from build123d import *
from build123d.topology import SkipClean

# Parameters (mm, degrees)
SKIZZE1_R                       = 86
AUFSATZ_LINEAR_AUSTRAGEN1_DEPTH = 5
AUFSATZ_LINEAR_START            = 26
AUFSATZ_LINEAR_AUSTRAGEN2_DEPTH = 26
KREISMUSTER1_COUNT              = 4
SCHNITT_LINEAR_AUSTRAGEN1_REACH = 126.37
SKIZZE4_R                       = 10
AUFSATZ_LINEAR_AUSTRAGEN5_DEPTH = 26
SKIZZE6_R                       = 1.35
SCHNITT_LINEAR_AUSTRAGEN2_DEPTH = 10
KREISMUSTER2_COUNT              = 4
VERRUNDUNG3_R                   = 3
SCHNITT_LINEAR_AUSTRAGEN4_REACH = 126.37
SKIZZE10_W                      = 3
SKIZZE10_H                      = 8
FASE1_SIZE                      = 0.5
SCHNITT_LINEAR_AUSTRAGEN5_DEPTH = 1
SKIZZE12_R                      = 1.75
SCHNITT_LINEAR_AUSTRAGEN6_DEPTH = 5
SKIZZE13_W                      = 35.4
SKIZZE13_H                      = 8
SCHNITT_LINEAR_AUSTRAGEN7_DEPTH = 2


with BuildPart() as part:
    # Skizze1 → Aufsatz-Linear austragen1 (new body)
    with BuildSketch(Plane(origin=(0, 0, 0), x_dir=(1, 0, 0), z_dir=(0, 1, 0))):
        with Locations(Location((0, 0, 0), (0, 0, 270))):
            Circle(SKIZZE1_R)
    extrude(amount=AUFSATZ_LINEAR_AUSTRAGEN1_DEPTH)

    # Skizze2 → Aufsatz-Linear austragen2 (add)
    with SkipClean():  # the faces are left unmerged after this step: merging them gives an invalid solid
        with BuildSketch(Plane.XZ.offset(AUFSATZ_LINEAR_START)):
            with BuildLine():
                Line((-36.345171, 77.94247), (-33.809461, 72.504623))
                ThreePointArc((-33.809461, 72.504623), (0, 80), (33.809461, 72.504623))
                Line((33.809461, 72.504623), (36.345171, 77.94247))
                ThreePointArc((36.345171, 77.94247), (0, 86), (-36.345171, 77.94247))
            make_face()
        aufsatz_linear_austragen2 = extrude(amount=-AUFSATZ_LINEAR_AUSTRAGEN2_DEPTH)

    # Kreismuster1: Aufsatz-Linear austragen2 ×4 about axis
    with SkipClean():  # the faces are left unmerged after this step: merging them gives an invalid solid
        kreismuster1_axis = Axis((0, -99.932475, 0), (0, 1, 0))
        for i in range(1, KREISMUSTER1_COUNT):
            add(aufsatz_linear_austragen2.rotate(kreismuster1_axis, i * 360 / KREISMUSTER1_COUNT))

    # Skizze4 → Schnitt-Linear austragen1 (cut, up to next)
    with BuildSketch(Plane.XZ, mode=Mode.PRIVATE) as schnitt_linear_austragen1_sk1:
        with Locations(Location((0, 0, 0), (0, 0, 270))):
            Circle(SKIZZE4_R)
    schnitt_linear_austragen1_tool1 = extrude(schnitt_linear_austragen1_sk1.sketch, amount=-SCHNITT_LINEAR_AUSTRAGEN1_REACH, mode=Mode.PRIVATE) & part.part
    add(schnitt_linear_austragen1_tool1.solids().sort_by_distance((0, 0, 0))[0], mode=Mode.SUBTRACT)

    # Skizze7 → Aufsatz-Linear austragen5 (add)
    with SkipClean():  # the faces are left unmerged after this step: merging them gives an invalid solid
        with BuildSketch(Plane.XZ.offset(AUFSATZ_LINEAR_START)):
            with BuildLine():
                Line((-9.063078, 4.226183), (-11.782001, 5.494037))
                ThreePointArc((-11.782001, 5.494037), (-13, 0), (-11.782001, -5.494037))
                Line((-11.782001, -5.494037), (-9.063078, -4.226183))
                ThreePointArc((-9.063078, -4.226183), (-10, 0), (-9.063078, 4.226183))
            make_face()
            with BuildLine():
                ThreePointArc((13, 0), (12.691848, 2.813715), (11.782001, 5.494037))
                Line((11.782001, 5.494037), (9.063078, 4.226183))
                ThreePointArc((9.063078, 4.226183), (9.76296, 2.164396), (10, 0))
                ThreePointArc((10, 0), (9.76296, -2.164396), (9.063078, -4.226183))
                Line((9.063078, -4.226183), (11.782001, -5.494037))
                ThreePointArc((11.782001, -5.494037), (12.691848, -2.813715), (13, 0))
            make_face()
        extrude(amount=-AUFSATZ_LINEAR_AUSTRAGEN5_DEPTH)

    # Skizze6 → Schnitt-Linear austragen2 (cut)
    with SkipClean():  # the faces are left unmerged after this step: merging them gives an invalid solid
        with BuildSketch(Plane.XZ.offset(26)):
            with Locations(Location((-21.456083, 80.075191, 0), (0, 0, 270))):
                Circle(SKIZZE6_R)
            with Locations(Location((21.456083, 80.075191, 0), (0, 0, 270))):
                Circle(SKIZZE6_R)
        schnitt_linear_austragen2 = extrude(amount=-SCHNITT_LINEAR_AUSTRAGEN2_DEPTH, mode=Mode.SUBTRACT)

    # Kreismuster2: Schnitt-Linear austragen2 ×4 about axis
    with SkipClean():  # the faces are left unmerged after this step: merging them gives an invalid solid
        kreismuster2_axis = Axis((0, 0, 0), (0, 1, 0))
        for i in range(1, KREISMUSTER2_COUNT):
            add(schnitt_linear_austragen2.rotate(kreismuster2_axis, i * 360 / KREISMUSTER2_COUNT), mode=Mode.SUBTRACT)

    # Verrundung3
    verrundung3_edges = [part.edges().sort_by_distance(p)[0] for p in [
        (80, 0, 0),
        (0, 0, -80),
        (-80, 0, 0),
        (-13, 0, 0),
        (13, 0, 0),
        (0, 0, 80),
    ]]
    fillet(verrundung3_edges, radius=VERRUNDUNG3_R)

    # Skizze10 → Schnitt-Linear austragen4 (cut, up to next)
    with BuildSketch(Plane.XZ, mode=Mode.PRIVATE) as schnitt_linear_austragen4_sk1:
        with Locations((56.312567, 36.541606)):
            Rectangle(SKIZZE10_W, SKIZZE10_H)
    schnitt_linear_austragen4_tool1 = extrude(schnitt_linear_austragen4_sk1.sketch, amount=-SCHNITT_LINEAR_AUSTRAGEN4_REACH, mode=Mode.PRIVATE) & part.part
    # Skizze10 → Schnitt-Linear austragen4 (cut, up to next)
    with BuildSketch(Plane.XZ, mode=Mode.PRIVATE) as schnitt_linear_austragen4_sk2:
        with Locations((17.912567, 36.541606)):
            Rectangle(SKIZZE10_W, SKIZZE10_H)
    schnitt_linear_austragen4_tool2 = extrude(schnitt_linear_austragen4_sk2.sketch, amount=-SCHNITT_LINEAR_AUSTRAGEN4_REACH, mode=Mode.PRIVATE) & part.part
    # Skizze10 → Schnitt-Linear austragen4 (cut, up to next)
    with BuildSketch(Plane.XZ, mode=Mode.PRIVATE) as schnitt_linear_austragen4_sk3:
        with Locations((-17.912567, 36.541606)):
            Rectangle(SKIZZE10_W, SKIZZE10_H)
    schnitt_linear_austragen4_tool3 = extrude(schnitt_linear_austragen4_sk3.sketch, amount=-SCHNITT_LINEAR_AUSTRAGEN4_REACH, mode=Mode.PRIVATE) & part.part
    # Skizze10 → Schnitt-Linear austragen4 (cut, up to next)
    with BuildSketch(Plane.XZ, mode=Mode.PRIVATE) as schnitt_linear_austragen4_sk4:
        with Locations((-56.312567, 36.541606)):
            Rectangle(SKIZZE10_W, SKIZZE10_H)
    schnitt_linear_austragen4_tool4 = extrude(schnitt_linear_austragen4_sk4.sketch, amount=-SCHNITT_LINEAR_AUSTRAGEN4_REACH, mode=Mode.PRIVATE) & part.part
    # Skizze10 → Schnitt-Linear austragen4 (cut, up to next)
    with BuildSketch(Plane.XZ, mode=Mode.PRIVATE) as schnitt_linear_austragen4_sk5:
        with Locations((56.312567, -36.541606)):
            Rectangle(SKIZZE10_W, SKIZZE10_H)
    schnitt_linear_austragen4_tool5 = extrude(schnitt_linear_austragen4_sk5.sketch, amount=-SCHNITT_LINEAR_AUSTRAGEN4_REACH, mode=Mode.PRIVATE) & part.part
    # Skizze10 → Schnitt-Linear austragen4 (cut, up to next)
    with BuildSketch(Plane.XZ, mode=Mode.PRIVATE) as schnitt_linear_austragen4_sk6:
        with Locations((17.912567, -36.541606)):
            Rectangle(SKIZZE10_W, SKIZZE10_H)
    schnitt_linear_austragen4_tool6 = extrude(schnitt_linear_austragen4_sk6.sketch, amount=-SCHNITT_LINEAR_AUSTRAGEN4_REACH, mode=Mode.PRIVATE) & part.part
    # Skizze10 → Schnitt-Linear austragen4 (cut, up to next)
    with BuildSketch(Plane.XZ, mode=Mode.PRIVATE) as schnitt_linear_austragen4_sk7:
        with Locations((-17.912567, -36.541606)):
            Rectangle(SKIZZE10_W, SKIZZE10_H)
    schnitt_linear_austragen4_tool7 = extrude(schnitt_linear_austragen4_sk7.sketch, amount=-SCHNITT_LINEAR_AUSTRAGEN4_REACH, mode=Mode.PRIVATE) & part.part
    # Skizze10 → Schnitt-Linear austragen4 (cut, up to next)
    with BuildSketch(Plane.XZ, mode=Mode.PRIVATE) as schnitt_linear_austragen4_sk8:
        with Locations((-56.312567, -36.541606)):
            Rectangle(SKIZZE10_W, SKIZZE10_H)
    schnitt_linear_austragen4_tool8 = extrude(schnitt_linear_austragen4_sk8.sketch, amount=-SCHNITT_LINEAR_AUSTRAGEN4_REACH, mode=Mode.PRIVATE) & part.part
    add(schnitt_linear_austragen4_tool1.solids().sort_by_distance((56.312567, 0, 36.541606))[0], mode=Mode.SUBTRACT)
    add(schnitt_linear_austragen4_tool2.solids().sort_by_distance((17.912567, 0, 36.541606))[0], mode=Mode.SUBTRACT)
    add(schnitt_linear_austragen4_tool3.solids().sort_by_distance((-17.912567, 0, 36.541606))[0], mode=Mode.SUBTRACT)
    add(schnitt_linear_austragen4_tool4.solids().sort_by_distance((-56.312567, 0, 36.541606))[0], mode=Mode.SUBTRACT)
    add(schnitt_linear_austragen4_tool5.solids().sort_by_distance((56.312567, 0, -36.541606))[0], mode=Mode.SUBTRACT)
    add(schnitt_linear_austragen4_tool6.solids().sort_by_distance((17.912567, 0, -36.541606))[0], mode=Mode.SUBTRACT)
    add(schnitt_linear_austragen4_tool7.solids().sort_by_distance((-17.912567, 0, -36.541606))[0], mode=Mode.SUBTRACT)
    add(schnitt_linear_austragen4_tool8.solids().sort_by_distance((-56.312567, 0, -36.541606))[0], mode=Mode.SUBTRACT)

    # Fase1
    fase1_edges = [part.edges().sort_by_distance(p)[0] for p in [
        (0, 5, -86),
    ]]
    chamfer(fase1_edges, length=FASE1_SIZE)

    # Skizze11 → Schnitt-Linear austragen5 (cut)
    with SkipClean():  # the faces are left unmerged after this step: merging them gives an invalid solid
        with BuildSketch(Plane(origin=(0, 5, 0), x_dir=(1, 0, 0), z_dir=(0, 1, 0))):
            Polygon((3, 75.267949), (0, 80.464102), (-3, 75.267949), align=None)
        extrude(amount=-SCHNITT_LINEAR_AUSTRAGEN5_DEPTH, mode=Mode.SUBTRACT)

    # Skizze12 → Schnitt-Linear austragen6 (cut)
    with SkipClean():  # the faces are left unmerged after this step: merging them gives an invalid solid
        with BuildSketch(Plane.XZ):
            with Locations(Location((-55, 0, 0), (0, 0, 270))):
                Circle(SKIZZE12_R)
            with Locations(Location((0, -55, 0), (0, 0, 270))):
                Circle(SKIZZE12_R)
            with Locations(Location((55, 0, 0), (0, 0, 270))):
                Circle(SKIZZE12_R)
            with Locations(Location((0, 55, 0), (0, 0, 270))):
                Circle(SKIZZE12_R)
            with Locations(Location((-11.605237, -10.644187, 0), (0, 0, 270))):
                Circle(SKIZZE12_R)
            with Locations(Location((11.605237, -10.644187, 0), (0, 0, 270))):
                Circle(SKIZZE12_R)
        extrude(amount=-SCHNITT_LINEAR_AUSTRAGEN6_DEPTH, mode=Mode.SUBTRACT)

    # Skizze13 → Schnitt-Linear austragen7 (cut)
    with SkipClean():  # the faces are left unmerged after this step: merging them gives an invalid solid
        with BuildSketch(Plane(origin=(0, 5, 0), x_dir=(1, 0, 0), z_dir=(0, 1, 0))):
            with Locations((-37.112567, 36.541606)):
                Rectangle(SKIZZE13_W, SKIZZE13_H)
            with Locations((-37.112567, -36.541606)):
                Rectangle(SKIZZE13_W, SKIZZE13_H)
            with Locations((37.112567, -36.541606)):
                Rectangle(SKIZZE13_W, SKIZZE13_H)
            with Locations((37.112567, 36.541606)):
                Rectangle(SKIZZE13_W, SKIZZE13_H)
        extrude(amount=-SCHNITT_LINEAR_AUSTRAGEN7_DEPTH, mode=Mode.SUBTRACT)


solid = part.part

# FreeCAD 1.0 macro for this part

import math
import FreeCAD as App
import Part
import Sketcher
from FreeCAD import Vector
Q = App.Units.Quantity


def edges_at(feature, points):
    """Names of the edges that pass closest to the given points."""
    edges = feature.Shape.Edges
    near = lambda p: min(range(len(edges)), key=lambda i: edges[i].distToShape(Part.Vertex(*p))[0])
    return sorted({f"Edge{near(p) + 1}" for p in points})


def add_polygon(sketch, points):
    """Adds a closed chain of lines whose ends are joined by coincident constraints."""
    first, n = sketch.GeometryCount, len(points)
    for a, b in zip(points, points[1:] + points[:1]):
        sketch.addGeometry(Part.LineSegment(App.Vector(*a, 0), App.Vector(*b, 0)), False)
    for i in range(n):
        sketch.addConstraint(Sketcher.Constraint("Coincident", first + i, 2, first + (i + 1) % n, 1))

doc = App.newDocument("Part")
body = doc.addObject("PartDesign::Body", "Body")

# Sketch on XZ plane
sketch1 = doc.addObject("Sketcher::SketchObject", "Sketch")
body.addObject(sketch1)
sketch1.AttachmentSupport = (doc.XZ_Plane, [""])
sketch1.MapMode = "FlatFace"
sketch1.addGeometry(Part.Circle(Vector(0, 0, 0), Vector(0, 0, 1), 86), False)
sketch1.addConstraint([
    Sketcher.Constraint("Coincident", 0, 3, -1, 1),
    Sketcher.Constraint("Diameter", 0, 172.0),
])
pad1 = doc.addObject("PartDesign::Pad", "Pad")
body.addObject(pad1)
pad1.Profile = sketch1
pad1.Length = 5
pad1.Reversed = True

# Sketch on XZ plane
sketch2 = doc.addObject("Sketcher::SketchObject", "Sketch001")
body.addObject(sketch2)
sketch2.AttachmentSupport = (doc.XZ_Plane, [""])
sketch2.MapMode = "FlatFace"
sketch2.AttachmentOffset = App.Placement(Vector(0, 0, 26), App.Rotation())
sketch2.addGeometry([
    Part.LineSegment(Vector(-36, 78, 0), Vector(-34, 73, 0)),
    Part.ArcOfCircle(Part.Circle(Vector(0, 0, 0), Vector(0, 0, 1), 80), math.radians(65), math.radians(115)),
    Part.LineSegment(Vector(34, 73, 0), Vector(36, 78, 0)),
    Part.ArcOfCircle(Part.Circle(Vector(0, 0, 0), Vector(0, 0, 1), 86), math.radians(65), math.radians(115)),
], False)
sketch2.addConstraint([
    Sketcher.Constraint("Coincident", 0, 2, 1, 2),
    Sketcher.Constraint("Coincident", 1, 1, 2, 1),
    Sketcher.Constraint("Coincident", 2, 2, 3, 1),
    Sketcher.Constraint("Coincident", 3, 2, 0, 1),
    Sketcher.Constraint("Coincident", 1, 3, -1, 1),
    Sketcher.Constraint("Coincident", 3, 3, -1, 1),
    Sketcher.Constraint("Horizontal", 0, 2, 1, 1),
    Sketcher.Constraint("Horizontal", 2, 2, 3, 2),
    Sketcher.Constraint("Radius", 1, 80.000001),
    Sketcher.Constraint("Angle", 0, Q("-64.999997 deg")),
    Sketcher.Constraint("Distance", 0, 6.0),
    Sketcher.Constraint("DistanceX", 0, 2, -1, 1, 33.809461),
])
pad2 = doc.addObject("PartDesign::Pad", "Pad001")
body.addObject(pad2)
pad2.Profile = sketch2
pad2.Length = 26
pad2.Reversed = True
doc.recompute()

polarpattern = doc.addObject("PartDesign::PolarPattern", "PolarPattern")
body.addObject(polarpattern)
polarpattern.Originals = [pad2]
polarpattern.Axis = (doc.Y_Axis, [""])
polarpattern.Angle = 360
polarpattern.Occurrences = 4
body.Tip = polarpattern

# Sketch on XZ plane
sketch3 = doc.addObject("Sketcher::SketchObject", "Sketch002")
body.addObject(sketch3)
sketch3.AttachmentSupport = (doc.XZ_Plane, [""])
sketch3.MapMode = "FlatFace"
sketch3.addGeometry(Part.Circle(Vector(0, 0, 0), Vector(0, 0, 1), 10), False)
sketch3.addConstraint([
    Sketcher.Constraint("Coincident", 0, 3, -1, 1),
    Sketcher.Constraint("Diameter", 0, 20.0),
])
pocket1 = doc.addObject("PartDesign::Pocket", "Pocket")
body.addObject(pocket1)
pocket1.Profile = sketch3
pocket1.Type = "UpToFirst"

# Sketch on XZ plane
sketch4 = doc.addObject("Sketcher::SketchObject", "Sketch003")
body.addObject(sketch4)
sketch4.AttachmentSupport = (doc.XZ_Plane, [""])
sketch4.MapMode = "FlatFace"
sketch4.AttachmentOffset = App.Placement(Vector(0, 0, 26), App.Rotation())
sketch4.addGeometry([
    Part.LineSegment(Vector(-9.1, 4.2, 0), Vector(-11.8, 5.5, 0)),  # 0
    Part.ArcOfCircle(Part.Circle(Vector(0, 0, 0), Vector(0, 0, 1), 13), math.radians(155), math.radians(205)),  # 1
    Part.LineSegment(Vector(-11.8, -5.5, 0), Vector(-9.1, -4.2, 0)),  # 2
    Part.ArcOfCircle(Part.Circle(Vector(0, 0, 0), Vector(0, 0, 1), 10), math.radians(155), math.radians(205)),  # 3
    Part.ArcOfCircle(Part.Circle(Vector(0, 0, 0), Vector(0, 0, 1), 13), math.radians(0), math.radians(25)),  # 4
    Part.LineSegment(Vector(11.8, 5.5, 0), Vector(9.1, 4.2, 0)),  # 5
    Part.ArcOfCircle(Part.Circle(Vector(0, 0, 0), Vector(0, 0, 1), 10), math.radians(0), math.radians(25)),  # 6
    Part.ArcOfCircle(Part.Circle(Vector(0, 0, 0), Vector(0, 0, 1), 10), math.radians(-25), math.radians(0)),  # 7
    Part.LineSegment(Vector(9.1, -4.2, 0), Vector(11.8, -5.5, 0)),  # 8
    Part.ArcOfCircle(Part.Circle(Vector(0, 0, 0), Vector(0, 0, 1), 13), math.radians(-25), math.radians(0)),  # 9
], False)
sketch4.addConstraint([
    Sketcher.Constraint("Coincident", 0, 2, 1, 1),
    Sketcher.Constraint("Coincident", 1, 2, 2, 1),
    Sketcher.Constraint("Coincident", 2, 2, 3, 2),
    Sketcher.Constraint("Coincident", 3, 1, 0, 1),
    Sketcher.Constraint("Coincident", 4, 2, 5, 1),
    Sketcher.Constraint("Coincident", 5, 2, 6, 2),
    Sketcher.Constraint("Tangent", 6, 1, 7, 2),
    Sketcher.Constraint("Coincident", 7, 1, 8, 1),
    Sketcher.Constraint("Coincident", 8, 2, 9, 1),
    Sketcher.Constraint("Tangent", 9, 2, 4, 1),
    Sketcher.Constraint("Coincident", 1, 3, -1, 1),
    Sketcher.Constraint("Coincident", 3, 3, -1, 1),
    Sketcher.Constraint("Coincident", 4, 3, -1, 1),
    Sketcher.Constraint("Coincident", 6, 3, 1, 3),
    Sketcher.Constraint("Equal", 1, 4),
    Sketcher.Constraint("Equal", 6, 7),
    Sketcher.Constraint("Equal", 4, 9),
    Sketcher.Constraint("Symmetric", 2, 2, 5, 2, -1, 1),
    Sketcher.Constraint("PointOnObject", 6, 1, -1),
    Sketcher.Constraint("PointOnObject", 9, 2, -1),
    Sketcher.Constraint("Parallel", 2, 5),
    Sketcher.Constraint("Parallel", 0, 8),
    Sketcher.Constraint("Horizontal", 0, 2, 4, 2),
    Sketcher.Constraint("Horizontal", 3, 1, 5, 2),
    Sketcher.Constraint("Horizontal", 2, 2, 7, 1),
    Sketcher.Constraint("Angle", 0, Q("155.000011 deg")),
    Sketcher.Constraint("Distance", 0, 2.999999),
    Sketcher.Constraint("DistanceX", -1, 1, 6, 1, 10.0),
    Sketcher.Constraint("DistanceX", 0, 2, -1, 1, 11.782001),
])
pad3 = doc.addObject("PartDesign::Pad", "Pad002")
body.addObject(pad3)
pad3.Profile = sketch4
pad3.Length = 26
pad3.Reversed = True

# Sketch on XZ plane
sketch5 = doc.addObject("Sketcher::SketchObject", "Sketch004")
body.addObject(sketch5)
sketch5.AttachmentSupport = (doc.XZ_Plane, [""])
sketch5.MapMode = "FlatFace"
sketch5.AttachmentOffset = App.Placement(Vector(0, 0, 26), App.Rotation())
sketch5.addGeometry([
    Part.Circle(Vector(-21.5, 80.1, 0), Vector(0, 0, 1), 1.4),
    Part.Circle(Vector(21.5, 80.1, 0), Vector(0, 0, 1), 1.4),
], False)
sketch5.addConstraint([
    Sketcher.Constraint("Equal", 0, 1),
    Sketcher.Constraint("Symmetric", 0, 3, 1, 3, -2),
    Sketcher.Constraint("Diameter", 0, 2.7),
    Sketcher.Constraint("DistanceY", -1, 1, 0, 3, 80.075191),
    Sketcher.Constraint("DistanceX", 0, 3, -1, 1, 21.456083),
])
pocket2 = doc.addObject("PartDesign::Pocket", "Pocket001")
body.addObject(pocket2)
pocket2.Profile = sketch5
pocket2.Length = 10
doc.recompute()

polarpattern2 = doc.addObject("PartDesign::PolarPattern", "PolarPattern001")
body.addObject(polarpattern2)
polarpattern2.Originals = [pocket2]
polarpattern2.Axis = (doc.Y_Axis, [""])
polarpattern2.Angle = 360
polarpattern2.Occurrences = 4
body.Tip = polarpattern2
doc.recompute()

fillet = doc.addObject("PartDesign::Fillet", "Fillet")
body.addObject(fillet)
fillet.Base = (polarpattern2, edges_at(polarpattern2, [
    (80, 0, 0),
    (0, 0, -80),
    (-80, 0, 0),
    (-13, 0, 0),
    (12.692, 0, 2.814),
    (0, 0, 80),
]))
fillet.Radius = 3

# Sketch on XZ plane
sketch6 = doc.addObject("Sketcher::SketchObject", "Sketch005")
body.addObject(sketch6)
sketch6.AttachmentSupport = (doc.XZ_Plane, [""])
sketch6.MapMode = "FlatFace"
add_polygon(sketch6, [(54.8, 40.5), (54.8, 32.5), (57.8, 32.5), (57.8, 40.5)])  # lines 0-3
sketch6.addConstraint([
    Sketcher.Constraint("Vertical", 0),
    Sketcher.Constraint("Horizontal", 1),
    Sketcher.Constraint("Vertical", 2),
    Sketcher.Constraint("Horizontal", 3),
    Sketcher.Constraint("DistanceX", 1, 1, 1, 2, 3.0),
    Sketcher.Constraint("DistanceY", 0, 2, 0, 1, 8.0),
    Sketcher.Constraint("DistanceX", -1, 1, 0, 2, 54.812567),
    Sketcher.Constraint("DistanceY", -1, 1, 0, 2, 32.541606),
])
pocket3 = doc.addObject("PartDesign::Pocket", "Pocket002")
body.addObject(pocket3)
pocket3.Profile = sketch6
pocket3.Type = "UpToFirst"

# Sketch on XZ plane
sketch7 = doc.addObject("Sketcher::SketchObject", "Sketch006")
body.addObject(sketch7)
sketch7.AttachmentSupport = (doc.XZ_Plane, [""])
sketch7.MapMode = "FlatFace"
add_polygon(sketch7, [(16.4, 40.5), (16.4, 32.5), (19.4, 32.5), (19.4, 40.5)])  # lines 0-3
sketch7.addConstraint([
    Sketcher.Constraint("Vertical", 0),
    Sketcher.Constraint("Horizontal", 1),
    Sketcher.Constraint("Vertical", 2),
    Sketcher.Constraint("Horizontal", 3),
    Sketcher.Constraint("DistanceX", 1, 1, 1, 2, 3.0),
    Sketcher.Constraint("DistanceY", 0, 2, 0, 1, 8.0),
    Sketcher.Constraint("DistanceX", -1, 1, 0, 2, 16.412567),
    Sketcher.Constraint("DistanceY", -1, 1, 0, 2, 32.541606),
])
pocket4 = doc.addObject("PartDesign::Pocket", "Pocket003")
body.addObject(pocket4)
pocket4.Profile = sketch7
pocket4.Type = "UpToFirst"

# Sketch on XZ plane
sketch8 = doc.addObject("Sketcher::SketchObject", "Sketch007")
body.addObject(sketch8)
sketch8.AttachmentSupport = (doc.XZ_Plane, [""])
sketch8.MapMode = "FlatFace"
add_polygon(sketch8, [(-19.4, 40.5), (-19.4, 32.5), (-16.4, 32.5), (-16.4, 40.5)])  # lines 0-3
sketch8.addConstraint([
    Sketcher.Constraint("Vertical", 0),
    Sketcher.Constraint("Horizontal", 1),
    Sketcher.Constraint("Vertical", 2),
    Sketcher.Constraint("Horizontal", 3),
    Sketcher.Constraint("DistanceX", 1, 1, 1, 2, 3.0),
    Sketcher.Constraint("DistanceY", 0, 2, 0, 1, 8.0),
    Sketcher.Constraint("DistanceX", 0, 2, -1, 1, 19.412567),
    Sketcher.Constraint("DistanceY", -1, 1, 0, 2, 32.541606),
])
pocket5 = doc.addObject("PartDesign::Pocket", "Pocket004")
body.addObject(pocket5)
pocket5.Profile = sketch8
pocket5.Type = "UpToFirst"

# Sketch on XZ plane
sketch9 = doc.addObject("Sketcher::SketchObject", "Sketch008")
body.addObject(sketch9)
sketch9.AttachmentSupport = (doc.XZ_Plane, [""])
sketch9.MapMode = "FlatFace"
add_polygon(sketch9, [(-57.8, 40.5), (-57.8, 32.5), (-54.8, 32.5), (-54.8, 40.5)])  # lines 0-3
sketch9.addConstraint([
    Sketcher.Constraint("Vertical", 0),
    Sketcher.Constraint("Horizontal", 1),
    Sketcher.Constraint("Vertical", 2),
    Sketcher.Constraint("Horizontal", 3),
    Sketcher.Constraint("DistanceX", 1, 1, 1, 2, 3.0),
    Sketcher.Constraint("DistanceY", 0, 2, 0, 1, 8.0),
    Sketcher.Constraint("DistanceX", 0, 2, -1, 1, 57.812567),
    Sketcher.Constraint("DistanceY", -1, 1, 0, 2, 32.541606),
])
pocket6 = doc.addObject("PartDesign::Pocket", "Pocket005")
body.addObject(pocket6)
pocket6.Profile = sketch9
pocket6.Type = "UpToFirst"

# Sketch on XZ plane
sketch10 = doc.addObject("Sketcher::SketchObject", "Sketch009")
body.addObject(sketch10)
sketch10.AttachmentSupport = (doc.XZ_Plane, [""])
sketch10.MapMode = "FlatFace"
add_polygon(sketch10, [(54.8, -32.5), (54.8, -40.5), (57.8, -40.5), (57.8, -32.5)])  # lines 0-3
sketch10.addConstraint([
    Sketcher.Constraint("Vertical", 0),
    Sketcher.Constraint("Horizontal", 1),
    Sketcher.Constraint("Vertical", 2),
    Sketcher.Constraint("Horizontal", 3),
    Sketcher.Constraint("DistanceX", 1, 1, 1, 2, 3.0),
    Sketcher.Constraint("DistanceY", 0, 2, 0, 1, 8.0),
    Sketcher.Constraint("DistanceX", -1, 1, 0, 2, 54.812567),
    Sketcher.Constraint("DistanceY", 0, 2, -1, 1, 40.541606),
])
pocket7 = doc.addObject("PartDesign::Pocket", "Pocket006")
body.addObject(pocket7)
pocket7.Profile = sketch10
pocket7.Type = "UpToFirst"

# Sketch on XZ plane
sketch11 = doc.addObject("Sketcher::SketchObject", "Sketch010")
body.addObject(sketch11)
sketch11.AttachmentSupport = (doc.XZ_Plane, [""])
sketch11.MapMode = "FlatFace"
add_polygon(sketch11, [(16.4, -32.5), (16.4, -40.5), (19.4, -40.5), (19.4, -32.5)])  # lines 0-3
sketch11.addConstraint([
    Sketcher.Constraint("Vertical", 0),
    Sketcher.Constraint("Horizontal", 1),
    Sketcher.Constraint("Vertical", 2),
    Sketcher.Constraint("Horizontal", 3),
    Sketcher.Constraint("DistanceX", 1, 1, 1, 2, 3.0),
    Sketcher.Constraint("DistanceY", 0, 2, 0, 1, 8.0),
    Sketcher.Constraint("DistanceX", -1, 1, 0, 2, 16.412567),
    Sketcher.Constraint("DistanceY", 0, 2, -1, 1, 40.541606),
])
pocket8 = doc.addObject("PartDesign::Pocket", "Pocket007")
body.addObject(pocket8)
pocket8.Profile = sketch11
pocket8.Type = "UpToFirst"

# Sketch on XZ plane
sketch12 = doc.addObject("Sketcher::SketchObject", "Sketch011")
body.addObject(sketch12)
sketch12.AttachmentSupport = (doc.XZ_Plane, [""])
sketch12.MapMode = "FlatFace"
add_polygon(sketch12, [(-19.4, -32.5), (-19.4, -40.5), (-16.4, -40.5), (-16.4, -32.5)])  # lines 0-3
sketch12.addConstraint([
    Sketcher.Constraint("Vertical", 0),
    Sketcher.Constraint("Horizontal", 1),
    Sketcher.Constraint("Vertical", 2),
    Sketcher.Constraint("Horizontal", 3),
    Sketcher.Constraint("DistanceX", 1, 1, 1, 2, 3.0),
    Sketcher.Constraint("DistanceY", 0, 2, 0, 1, 8.0),
    Sketcher.Constraint("DistanceX", 0, 2, -1, 1, 19.412567),
    Sketcher.Constraint("DistanceY", 0, 2, -1, 1, 40.541606),
])
pocket9 = doc.addObject("PartDesign::Pocket", "Pocket008")
body.addObject(pocket9)
pocket9.Profile = sketch12
pocket9.Type = "UpToFirst"

# Sketch on XZ plane
sketch13 = doc.addObject("Sketcher::SketchObject", "Sketch012")
body.addObject(sketch13)
sketch13.AttachmentSupport = (doc.XZ_Plane, [""])
sketch13.MapMode = "FlatFace"
add_polygon(sketch13, [(-57.8, -32.5), (-57.8, -40.5), (-54.8, -40.5), (-54.8, -32.5)])  # lines 0-3
sketch13.addConstraint([
    Sketcher.Constraint("Vertical", 0),
    Sketcher.Constraint("Horizontal", 1),
    Sketcher.Constraint("Vertical", 2),
    Sketcher.Constraint("Horizontal", 3),
    Sketcher.Constraint("DistanceX", 1, 1, 1, 2, 3.0),
    Sketcher.Constraint("DistanceY", 0, 2, 0, 1, 8.0),
    Sketcher.Constraint("DistanceX", 0, 2, -1, 1, 57.812567),
    Sketcher.Constraint("DistanceY", 0, 2, -1, 1, 40.541606),
])
pocket10 = doc.addObject("PartDesign::Pocket", "Pocket009")
body.addObject(pocket10)
pocket10.Profile = sketch13
pocket10.Type = "UpToFirst"
doc.recompute()

chamfer = doc.addObject("PartDesign::Chamfer", "Chamfer")
body.addObject(chamfer)
chamfer.Base = (pocket10, edges_at(pocket10, [(0, 5, -86)]))
chamfer.Size = 0.5

# Sketch on XZ plane
sketch14 = doc.addObject("Sketcher::SketchObject", "Sketch013")
body.addObject(sketch14)
sketch14.AttachmentSupport = (doc.XZ_Plane, [""])
sketch14.MapMode = "FlatFace"
sketch14.AttachmentOffset = App.Placement(Vector(0, 0, -5), App.Rotation())
add_polygon(sketch14, [(3, -75), (0, -80), (-3, -75)])  # lines 0-2
sketch14.addConstraint([
    Sketcher.Constraint("Horizontal", 2),
    Sketcher.Constraint("PointOnObject", 0, 2, -2),
    Sketcher.Constraint("Equal", 0, 1),
    Sketcher.Constraint("DistanceX", 2, 1, 2, 2, 6.0),
    Sketcher.Constraint("Angle", 0, Q("-119.999997 deg")),
    Sketcher.Constraint("DistanceY", 0, 2, -1, 1, 80.464102),
])
pocket11 = doc.addObject("PartDesign::Pocket", "Pocket010")
body.addObject(pocket11)
pocket11.Profile = sketch14
pocket11.Length = 1
pocket11.Reversed = True

# Sketch on XZ plane
sketch15 = doc.addObject("Sketcher::SketchObject", "Sketch014")
body.addObject(sketch15)
sketch15.AttachmentSupport = (doc.XZ_Plane, [""])
sketch15.MapMode = "FlatFace"
sketch15.addGeometry([
    Part.Circle(Vector(-55, 0, 0), Vector(0, 0, 1), 1.8),  # 0
    Part.Circle(Vector(0, -55, 0), Vector(0, 0, 1), 1.8),  # 1
    Part.Circle(Vector(55, 0, 0), Vector(0, 0, 1), 1.8),  # 2
    Part.Circle(Vector(0, 55, 0), Vector(0, 0, 1), 1.8),  # 3
    Part.Circle(Vector(-11.6, -10.6, 0), Vector(0, 0, 1), 1.8),  # 4
    Part.Circle(Vector(11.6, -10.6, 0), Vector(0, 0, 1), 1.8),  # 5
], False)
sketch15.addConstraint([
    Sketcher.Constraint("Equal", 0, 1),
    Sketcher.Constraint("Equal", 1, 2),
    Sketcher.Constraint("Equal", 2, 3),
    Sketcher.Constraint("Equal", 3, 4),
    Sketcher.Constraint("Equal", 4, 5),
    Sketcher.Constraint("Symmetric", 0, 3, 2, 3, -1, 1),
    Sketcher.Constraint("Symmetric", 1, 3, 3, 3, -1, 1),
    Sketcher.Constraint("Symmetric", 4, 3, 5, 3, -2),
    Sketcher.Constraint("PointOnObject", 0, 3, -1),
    Sketcher.Constraint("PointOnObject", 1, 3, -2),
    Sketcher.Constraint("Diameter", 0, 3.5),
    Sketcher.Constraint("DistanceX", 0, 3, -1, 1, 55.0),
    Sketcher.Constraint("DistanceY", 1, 3, -1, 1, 55.0),
    Sketcher.Constraint("DistanceX", 4, 3, -1, 1, 11.605237),
    Sketcher.Constraint("DistanceY", 4, 3, -1, 1, 10.644187),
])
pocket12 = doc.addObject("PartDesign::Pocket", "Pocket011")
body.addObject(pocket12)
pocket12.Profile = sketch15
pocket12.Length = 5

# Sketch on XZ plane
sketch16 = doc.addObject("Sketcher::SketchObject", "Sketch015")
body.addObject(sketch16)
sketch16.AttachmentSupport = (doc.XZ_Plane, [""])
sketch16.MapMode = "FlatFace"
sketch16.AttachmentOffset = App.Placement(Vector(0, 0, -5), App.Rotation())
add_polygon(sketch16, [(-55, -41), (-55, -33), (-19, -33), (-19, -41)])  # lines 0-3
add_polygon(sketch16, [(-55, 33), (-55, 41), (-19, 41), (-19, 33)])  # lines 4-7
add_polygon(sketch16, [(19, 33), (19, 41), (55, 41), (55, 33)])  # lines 8-11
add_polygon(sketch16, [(19, -41), (19, -33), (55, -33), (55, -41)])  # lines 12-15
sketch16.addConstraint([
    Sketcher.Constraint("Vertical", 0),
    Sketcher.Constraint("Horizontal", 1),
    Sketcher.Constraint("Vertical", 2),
    Sketcher.Constraint("Horizontal", 3),
    Sketcher.Constraint("Vertical", 4),
    Sketcher.Constraint("Horizontal", 5),
    Sketcher.Constraint("Vertical", 6),
    Sketcher.Constraint("Horizontal", 7),
    Sketcher.Constraint("Vertical", 8),
    Sketcher.Constraint("Horizontal", 9),
    Sketcher.Constraint("Vertical", 10),
    Sketcher.Constraint("Horizontal", 11),
    Sketcher.Constraint("Vertical", 12),
    Sketcher.Constraint("Horizontal", 13),
    Sketcher.Constraint("Vertical", 14),
    Sketcher.Constraint("Horizontal", 15),
    Sketcher.Constraint("Symmetric", 2, 2, 8, 2, -1, 1),
    Sketcher.Constraint("Symmetric", 0, 2, 10, 2, -1, 1),
    Sketcher.Constraint("Symmetric", 6, 2, 12, 2, -1, 1),
    Sketcher.Constraint("Symmetric", 4, 2, 14, 2, -1, 1),
    Sketcher.Constraint("Symmetric", 5, 2, 8, 2, -2),
    Sketcher.Constraint("Symmetric", 7, 2, 10, 2, -2),
    Sketcher.Constraint("DistanceY", 0, 1, 0, 2, 8.0),
    Sketcher.Constraint("DistanceX", 1, 1, 1, 2, 35.4),
    Sketcher.Constraint("DistanceX", 0, 2, -1, 1, 54.812567),
    Sketcher.Constraint("DistanceY", 0, 2, -1, 1, 32.541606),
])
pocket13 = doc.addObject("PartDesign::Pocket", "Pocket012")
body.addObject(pocket13)
pocket13.Profile = sketch16
pocket13.Length = 2
pocket13.Reversed = True

doc.recompute()
